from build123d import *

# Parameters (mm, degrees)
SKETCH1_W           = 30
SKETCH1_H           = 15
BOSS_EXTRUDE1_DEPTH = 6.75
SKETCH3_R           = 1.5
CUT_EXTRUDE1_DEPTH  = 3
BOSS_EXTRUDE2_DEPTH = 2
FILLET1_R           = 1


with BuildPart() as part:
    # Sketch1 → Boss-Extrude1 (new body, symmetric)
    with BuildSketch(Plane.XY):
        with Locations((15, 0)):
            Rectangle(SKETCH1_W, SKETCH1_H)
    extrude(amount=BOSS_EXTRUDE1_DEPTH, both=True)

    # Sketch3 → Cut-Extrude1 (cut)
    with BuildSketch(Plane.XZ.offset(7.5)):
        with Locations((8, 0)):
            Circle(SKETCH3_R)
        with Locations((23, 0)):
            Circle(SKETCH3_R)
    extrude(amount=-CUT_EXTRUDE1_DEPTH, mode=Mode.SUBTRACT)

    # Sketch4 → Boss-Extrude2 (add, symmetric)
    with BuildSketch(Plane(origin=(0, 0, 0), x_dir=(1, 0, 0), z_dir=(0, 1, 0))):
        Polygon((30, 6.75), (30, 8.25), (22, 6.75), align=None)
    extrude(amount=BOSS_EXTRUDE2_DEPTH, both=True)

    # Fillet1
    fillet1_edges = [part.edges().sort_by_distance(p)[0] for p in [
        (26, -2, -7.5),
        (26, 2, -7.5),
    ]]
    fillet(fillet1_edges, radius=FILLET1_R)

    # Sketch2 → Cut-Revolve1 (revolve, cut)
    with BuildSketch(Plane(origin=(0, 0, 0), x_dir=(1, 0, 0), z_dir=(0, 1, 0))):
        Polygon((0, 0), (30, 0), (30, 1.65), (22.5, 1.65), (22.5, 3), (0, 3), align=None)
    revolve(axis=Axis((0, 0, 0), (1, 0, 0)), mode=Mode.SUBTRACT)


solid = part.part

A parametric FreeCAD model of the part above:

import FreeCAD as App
import Part
import Sketcher
from FreeCAD import Vector
Q = App.Units.Quantity


def edges_at(feature, points):
    """Names of the edges that pass closest to the given points."""
    edges = feature.Shape.Edges
    near = lambda p: min(range(len(edges)), key=lambda i: edges[i].distToShape(Part.Vertex(*p))[0])
    return sorted({f"Edge{near(p) + 1}" for p in points})


def add_polygon(sketch, points):
    """Adds a closed chain of lines whose ends are joined by coincident constraints."""
    first, n = sketch.GeometryCount, len(points)
    for a, b in zip(points, points[1:] + points[:1]):
        sketch.addGeometry(Part.LineSegment(App.Vector(*a, 0), App.Vector(*b, 0)), False)
    for i in range(n):
        sketch.addConstraint(Sketcher.Constraint("Coincident", first + i, 2, first + (i + 1) % n, 1))

doc = App.newDocument("Part")
params = doc.addObject("Spreadsheet::Sheet", "Params")
for row, (alias, value) in enumerate([
    ("sketch1_width", "30 mm"),
    ("sketch1_height", "15 mm"),
    ("pad1_length", "13.5 mm"),
    ("sketch2_diameter", "3 mm"),
    ("pocket1_length", "3 mm"),
    ("sketch3_width", "8 mm"),
    ("sketch3_height", "1.5 mm"),
    ("pad2_length", "4 mm"),
    ("fillet_radius", "1 mm"),
    ("sketch4_width", "30 mm"),
    ("sketch4_height", "3 mm"),
    ("sketch4_width2", "7.5 mm"),
    ("sketch4_height2", "1.65 mm"),
    ("groove_angle", "360 deg"),
], start=1):
    params.set(f"A{row}", alias)
    params.set(f"B{row}", "=" + value)
    params.setAlias(f"B{row}", alias)

body = doc.addObject("PartDesign::Body", "Body")

# Sketch on XY plane
sketch1 = doc.addObject("Sketcher::SketchObject", "Sketch")
body.addObject(sketch1)
sketch1.AttachmentSupport = (doc.XY_Plane, [""])
sketch1.MapMode = "FlatFace"
add_polygon(sketch1, [(0, 8), (0, -8), (30, -8), (30, 8)])  # lines 0-3
sketch1.addConstraint([
    Sketcher.Constraint("Vertical", 0),
    Sketcher.Constraint("Horizontal", 1),
    Sketcher.Constraint("Vertical", 2),
    Sketcher.Constraint("Horizontal", 3),
    Sketcher.Constraint("Symmetric", 0, 2, 3, 2, -1, 1),
    Sketcher.Constraint("DistanceX", 1, 1, 1, 2, Q("30 mm")),
    Sketcher.Constraint("DistanceY", 0, 2, 0, 1, Q("15 mm")),
])
sketch1.setExpression("Constraints[9]", "Params.sketch1_width")
sketch1.setExpression("Constraints[10]", "Params.sketch1_height")
pad1 = doc.addObject("PartDesign::Pad", "Pad")
body.addObject(pad1)
pad1.Profile = sketch1
pad1.setExpression("Length", "Params.pad1_length")
pad1.Midplane = True

# Sketch on XZ plane
sketch2 = doc.addObject("Sketcher::SketchObject", "Sketch001")
body.addObject(sketch2)
sketch2.AttachmentSupport = (doc.XZ_Plane, [""])
sketch2.MapMode = "FlatFace"
sketch2.AttachmentOffset = App.Placement(Vector(0, 0, 7.5), App.Rotation())
sketch2.addGeometry([
    Part.Circle(Vector(8, 0, 0), Vector(0, 0, 1), 1.5),
    Part.Circle(Vector(23, 0, 0), Vector(0, 0, 1), 1.5),
], False)
sketch2.addConstraint([
    Sketcher.Constraint("Equal", 0, 1),
    Sketcher.Constraint("PointOnObject", 0, 3, -1),
    Sketcher.Constraint("PointOnObject", 1, 3, -1),
    Sketcher.Constraint("Diameter", 0, Q("3 mm")),
    Sketcher.Constraint("DistanceX", -1, 1, 0, 3, Q("8 mm")),
    Sketcher.Constraint("DistanceX", -1, 1, 1, 3, Q("23 mm")),
])
sketch2.setExpression("Constraints[3]", "Params.sketch2_diameter")
pocket1 = doc.addObject("PartDesign::Pocket", "Pocket")
body.addObject(pocket1)
pocket1.Profile = sketch2
pocket1.setExpression("Length", "Params.pocket1_length")

# Sketch on XZ plane
sketch3 = doc.addObject("Sketcher::SketchObject", "Sketch002")
body.addObject(sketch3)
sketch3.AttachmentSupport = (doc.XZ_Plane, [""])
sketch3.MapMode = "FlatFace"
add_polygon(sketch3, [(30, -6.8), (30, -8.2), (22, -6.8)])  # lines 0-2
sketch3.addConstraint([
    Sketcher.Constraint("Vertical", 0),
    Sketcher.Constraint("Horizontal", 2),
    Sketcher.Constraint("DistanceX", 2, 1, 2, 2, Q("8 mm")),
    Sketcher.Constraint("DistanceY", 0, 2, 0, 1, Q("1.5 mm")),
    Sketcher.Constraint("DistanceX", -1, 1, 0, 2, Q("30 mm")),
    Sketcher.Constraint("DistanceY", 0, 2, -1, 1, Q("8.25 mm")),
])
sketch3.setExpression("Constraints[5]", "Params.sketch3_width")
sketch3.setExpression("Constraints[6]", "Params.sketch3_height")
pad2 = doc.addObject("PartDesign::Pad", "Pad001")
body.addObject(pad2)
pad2.Profile = sketch3
pad2.setExpression("Length", "Params.pad2_length")
pad2.Midplane = True
doc.recompute()

fillet = doc.addObject("PartDesign::Fillet", "Fillet")
body.addObject(fillet)
fillet.Base = (pad2, edges_at(pad2, [(26, -2, -7.5), (26, 2, -7.5)]))
fillet.setExpression("Radius", "Params.fillet_radius")

# Sketch on XZ plane
sketch4 = doc.addObject("Sketcher::SketchObject", "Sketch003")
body.addObject(sketch4)
sketch4.AttachmentSupport = (doc.XZ_Plane, [""])
sketch4.MapMode = "FlatFace"
add_polygon(sketch4, [(0, 0), (30, 0), (30, -1.6), (22.5, -1.6), (22.5, -3), (0, -3)])  # lines 0-5
sketch4.addConstraint([
    Sketcher.Constraint("Horizontal", 0),
    Sketcher.Constraint("Vertical", 1),
    Sketcher.Constraint("Horizontal", 2),
    Sketcher.Constraint("Vertical", 3),
    Sketcher.Constraint("Horizontal", 4),
    Sketcher.Constraint("Vertical", 5),
    Sketcher.Constraint("Coincident", 5, 2, -1, 1),
    Sketcher.Constraint("DistanceX", 0, 1, 0, 2, Q("30 mm")),
    Sketcher.Constraint("DistanceY", 5, 1, 5, 2, Q("3 mm")),
    Sketcher.Constraint("DistanceX", 2, 2, 2, 1, Q("7.5 mm")),
    Sketcher.Constraint("DistanceY", 1, 2, 1, 1, Q("1.65 mm")),
])
sketch4.setExpression("Constraints[13]", "Params.sketch4_width")
sketch4.setExpression("Constraints[14]", "Params.sketch4_height")
sketch4.setExpression("Constraints[15]", "Params.sketch4_width2")
sketch4.setExpression("Constraints[16]", "Params.sketch4_height2")
groove = doc.addObject("PartDesign::Groove", "Groove")
body.addObject(groove)
groove.Profile = sketch4
groove.ReferenceAxis = (sketch4, ["H_Axis"])
groove.setExpression("Angle", "Params.groove_angle")

doc.recompute()
